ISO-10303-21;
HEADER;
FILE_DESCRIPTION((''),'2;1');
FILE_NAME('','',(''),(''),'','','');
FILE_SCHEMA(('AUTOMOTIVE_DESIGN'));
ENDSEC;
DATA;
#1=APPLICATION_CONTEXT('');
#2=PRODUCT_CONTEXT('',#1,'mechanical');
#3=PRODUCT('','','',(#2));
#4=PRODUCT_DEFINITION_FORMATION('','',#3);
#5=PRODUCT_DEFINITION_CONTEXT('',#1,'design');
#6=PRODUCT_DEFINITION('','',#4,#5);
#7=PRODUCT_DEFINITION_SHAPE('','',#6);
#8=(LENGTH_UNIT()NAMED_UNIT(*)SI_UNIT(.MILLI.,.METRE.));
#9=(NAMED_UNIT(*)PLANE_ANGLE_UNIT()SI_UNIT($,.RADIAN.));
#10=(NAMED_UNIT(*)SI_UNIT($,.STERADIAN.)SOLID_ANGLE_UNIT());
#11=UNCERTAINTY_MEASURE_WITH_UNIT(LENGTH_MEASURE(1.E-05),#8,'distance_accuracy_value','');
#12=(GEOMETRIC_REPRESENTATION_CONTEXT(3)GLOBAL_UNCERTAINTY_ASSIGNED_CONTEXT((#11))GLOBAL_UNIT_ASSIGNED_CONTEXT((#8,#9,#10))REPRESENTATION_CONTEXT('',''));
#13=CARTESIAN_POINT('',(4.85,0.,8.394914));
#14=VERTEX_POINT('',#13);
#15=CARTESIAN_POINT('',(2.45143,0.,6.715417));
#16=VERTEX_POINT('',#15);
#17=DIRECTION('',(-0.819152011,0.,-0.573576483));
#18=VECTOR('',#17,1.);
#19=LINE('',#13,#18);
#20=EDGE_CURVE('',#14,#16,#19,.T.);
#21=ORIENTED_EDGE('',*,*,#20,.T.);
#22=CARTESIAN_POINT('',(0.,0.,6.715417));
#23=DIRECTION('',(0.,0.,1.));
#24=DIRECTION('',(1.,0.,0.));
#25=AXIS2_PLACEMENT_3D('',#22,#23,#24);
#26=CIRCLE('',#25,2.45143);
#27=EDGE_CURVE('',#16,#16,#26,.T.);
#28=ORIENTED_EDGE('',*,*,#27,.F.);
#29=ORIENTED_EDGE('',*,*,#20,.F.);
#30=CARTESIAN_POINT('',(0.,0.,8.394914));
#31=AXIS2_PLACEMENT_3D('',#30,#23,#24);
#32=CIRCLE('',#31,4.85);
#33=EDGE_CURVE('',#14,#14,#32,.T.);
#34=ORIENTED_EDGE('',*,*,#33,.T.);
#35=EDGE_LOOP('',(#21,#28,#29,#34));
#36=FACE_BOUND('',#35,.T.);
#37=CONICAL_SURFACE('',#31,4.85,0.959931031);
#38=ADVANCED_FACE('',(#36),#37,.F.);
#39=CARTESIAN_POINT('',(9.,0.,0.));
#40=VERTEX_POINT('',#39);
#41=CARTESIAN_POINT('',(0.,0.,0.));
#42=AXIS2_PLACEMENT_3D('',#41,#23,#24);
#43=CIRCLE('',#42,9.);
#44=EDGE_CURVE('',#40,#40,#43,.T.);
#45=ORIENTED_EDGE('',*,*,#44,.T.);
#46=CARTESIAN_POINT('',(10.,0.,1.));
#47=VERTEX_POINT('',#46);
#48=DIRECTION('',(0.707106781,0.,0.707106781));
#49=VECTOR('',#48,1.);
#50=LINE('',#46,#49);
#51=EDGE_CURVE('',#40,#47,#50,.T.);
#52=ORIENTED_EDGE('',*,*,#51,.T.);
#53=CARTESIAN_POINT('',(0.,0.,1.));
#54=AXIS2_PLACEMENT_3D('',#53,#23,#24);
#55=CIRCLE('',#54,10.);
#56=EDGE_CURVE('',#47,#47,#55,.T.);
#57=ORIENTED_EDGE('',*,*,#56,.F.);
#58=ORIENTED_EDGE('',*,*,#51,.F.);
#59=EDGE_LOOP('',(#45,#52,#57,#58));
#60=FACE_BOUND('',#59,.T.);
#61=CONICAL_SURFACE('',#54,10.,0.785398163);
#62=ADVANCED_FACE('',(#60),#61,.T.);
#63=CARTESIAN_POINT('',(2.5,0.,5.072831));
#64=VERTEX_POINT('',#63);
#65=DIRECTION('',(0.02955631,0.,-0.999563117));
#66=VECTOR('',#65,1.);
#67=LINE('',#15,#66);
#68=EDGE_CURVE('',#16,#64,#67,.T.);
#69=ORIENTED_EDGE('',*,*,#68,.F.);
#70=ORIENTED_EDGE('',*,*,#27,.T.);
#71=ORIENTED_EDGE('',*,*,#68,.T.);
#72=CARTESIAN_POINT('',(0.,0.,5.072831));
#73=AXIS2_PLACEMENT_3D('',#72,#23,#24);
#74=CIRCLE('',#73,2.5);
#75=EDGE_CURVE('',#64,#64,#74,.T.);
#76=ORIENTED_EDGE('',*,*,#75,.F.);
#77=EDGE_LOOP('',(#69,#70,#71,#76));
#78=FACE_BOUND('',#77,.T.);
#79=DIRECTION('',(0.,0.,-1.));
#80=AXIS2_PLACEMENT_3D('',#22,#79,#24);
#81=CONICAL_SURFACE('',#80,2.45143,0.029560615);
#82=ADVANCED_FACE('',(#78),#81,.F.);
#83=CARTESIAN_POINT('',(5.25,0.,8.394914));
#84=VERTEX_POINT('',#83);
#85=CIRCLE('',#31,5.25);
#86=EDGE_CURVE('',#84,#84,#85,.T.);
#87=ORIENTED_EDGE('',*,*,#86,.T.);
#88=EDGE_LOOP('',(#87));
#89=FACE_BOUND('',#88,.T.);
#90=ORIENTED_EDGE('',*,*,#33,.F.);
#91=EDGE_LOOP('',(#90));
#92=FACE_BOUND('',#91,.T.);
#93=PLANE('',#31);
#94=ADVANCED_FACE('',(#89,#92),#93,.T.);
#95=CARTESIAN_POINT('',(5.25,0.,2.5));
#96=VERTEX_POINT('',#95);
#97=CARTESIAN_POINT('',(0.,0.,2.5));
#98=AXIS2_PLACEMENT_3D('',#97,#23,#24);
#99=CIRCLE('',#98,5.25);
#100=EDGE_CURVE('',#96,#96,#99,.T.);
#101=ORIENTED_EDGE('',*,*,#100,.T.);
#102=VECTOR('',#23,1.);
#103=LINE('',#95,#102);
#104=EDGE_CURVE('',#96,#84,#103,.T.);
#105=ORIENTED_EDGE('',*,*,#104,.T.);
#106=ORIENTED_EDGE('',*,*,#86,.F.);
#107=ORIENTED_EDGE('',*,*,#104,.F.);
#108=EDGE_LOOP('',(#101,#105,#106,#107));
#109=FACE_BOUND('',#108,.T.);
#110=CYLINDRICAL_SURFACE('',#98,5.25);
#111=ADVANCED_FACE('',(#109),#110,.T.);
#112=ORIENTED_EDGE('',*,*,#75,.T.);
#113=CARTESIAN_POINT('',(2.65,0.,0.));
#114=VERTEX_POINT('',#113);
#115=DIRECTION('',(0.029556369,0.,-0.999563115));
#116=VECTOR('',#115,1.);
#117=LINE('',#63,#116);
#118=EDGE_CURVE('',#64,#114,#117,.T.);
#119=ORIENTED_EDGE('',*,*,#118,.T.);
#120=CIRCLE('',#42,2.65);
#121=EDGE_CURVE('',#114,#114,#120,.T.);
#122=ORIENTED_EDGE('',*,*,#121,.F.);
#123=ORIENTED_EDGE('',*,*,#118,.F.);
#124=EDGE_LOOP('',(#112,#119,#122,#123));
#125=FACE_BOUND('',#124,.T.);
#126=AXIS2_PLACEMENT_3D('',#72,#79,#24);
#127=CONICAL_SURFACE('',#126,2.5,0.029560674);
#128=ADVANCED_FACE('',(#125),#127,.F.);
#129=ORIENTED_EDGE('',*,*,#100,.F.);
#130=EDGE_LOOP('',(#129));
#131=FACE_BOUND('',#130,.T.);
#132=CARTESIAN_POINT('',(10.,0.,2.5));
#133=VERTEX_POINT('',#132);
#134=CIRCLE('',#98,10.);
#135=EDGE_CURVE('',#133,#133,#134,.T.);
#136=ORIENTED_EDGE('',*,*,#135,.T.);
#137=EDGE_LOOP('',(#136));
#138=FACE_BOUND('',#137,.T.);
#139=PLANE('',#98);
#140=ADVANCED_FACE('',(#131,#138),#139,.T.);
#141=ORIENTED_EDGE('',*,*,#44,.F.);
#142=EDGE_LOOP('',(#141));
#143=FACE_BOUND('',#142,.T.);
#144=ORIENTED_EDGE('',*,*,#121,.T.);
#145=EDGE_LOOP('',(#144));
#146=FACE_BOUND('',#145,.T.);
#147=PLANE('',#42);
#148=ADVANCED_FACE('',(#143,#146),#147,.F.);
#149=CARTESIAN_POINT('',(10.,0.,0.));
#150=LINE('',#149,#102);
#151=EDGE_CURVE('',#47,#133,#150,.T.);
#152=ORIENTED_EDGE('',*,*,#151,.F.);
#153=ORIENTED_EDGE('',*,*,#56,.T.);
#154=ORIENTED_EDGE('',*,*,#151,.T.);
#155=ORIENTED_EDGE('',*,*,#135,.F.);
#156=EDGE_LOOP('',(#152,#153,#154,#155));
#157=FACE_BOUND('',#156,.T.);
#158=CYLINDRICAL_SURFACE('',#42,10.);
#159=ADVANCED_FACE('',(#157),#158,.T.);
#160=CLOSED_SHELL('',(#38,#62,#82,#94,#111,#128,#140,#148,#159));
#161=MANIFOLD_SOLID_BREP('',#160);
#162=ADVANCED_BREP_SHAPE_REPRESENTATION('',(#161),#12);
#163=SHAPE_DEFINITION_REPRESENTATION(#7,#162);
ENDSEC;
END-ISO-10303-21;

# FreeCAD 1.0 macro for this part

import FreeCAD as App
import Part
import Sketcher
Q = App.Units.Quantity


def edges_at(feature, points):
    """Names of the edges that pass closest to the given points."""
    edges = feature.Shape.Edges
    near = lambda p: min(range(len(edges)), key=lambda i: edges[i].distToShape(Part.Vertex(*p))[0])
    return sorted({f"Edge{near(p) + 1}" for p in points})

doc = App.newDocument("Part")
body = doc.addObject("PartDesign::Body", "Body")

sketch1 = body.newObject("Sketcher::SketchObject", "Sketch")
sketch1.AttachmentSupport = (doc.getObject("XZ_Plane"), [""])
sketch1.MapMode = "FlatFace"
sketch1.addGeometry(Part.LineSegment(App.Vector(5.25, 8.39, 0), App.Vector(4.85, 8.39, 0)), False)
sketch1.addGeometry(Part.LineSegment(App.Vector(4.85, 8.39, 0), App.Vector(2.45, 6.72, 0)), False)
sketch1.addGeometry(Part.LineSegment(App.Vector(2.45, 6.72, 0), App.Vector(2.5, 5.07, 0)), False)
sketch1.addGeometry(Part.LineSegment(App.Vector(2.5, 5.07, 0), App.Vector(2.65, 0, 0)), False)
sketch1.addGeometry(Part.LineSegment(App.Vector(2.65, 0, 0), App.Vector(10, 0, 0)), False)
sketch1.addGeometry(Part.LineSegment(App.Vector(10, 0, 0), App.Vector(10, 2.5, 0)), False)
sketch1.addGeometry(Part.LineSegment(App.Vector(10, 2.5, 0), App.Vector(5.25, 2.5, 0)), False)
sketch1.addGeometry(Part.LineSegment(App.Vector(5.25, 2.5, 0), App.Vector(5.25, 8.39, 0)), False)
sketch1.addConstraint(Sketcher.Constraint("Coincident", 0, 2, 1, 1))
sketch1.addConstraint(Sketcher.Constraint("Coincident", 1, 2, 2, 1))
sketch1.addConstraint(Sketcher.Constraint("Coincident", 2, 2, 3, 1))
sketch1.addConstraint(Sketcher.Constraint("Coincident", 3, 2, 4, 1))
sketch1.addConstraint(Sketcher.Constraint("Coincident", 4, 2, 5, 1))
sketch1.addConstraint(Sketcher.Constraint("Coincident", 5, 2, 6, 1))
sketch1.addConstraint(Sketcher.Constraint("Coincident", 6, 2, 7, 1))
sketch1.addConstraint(Sketcher.Constraint("Coincident", 7, 2, 0, 1))
sketch1.addConstraint(Sketcher.Constraint("Horizontal", 0))
sketch1.addConstraint(Sketcher.Constraint("Horizontal", 4))
sketch1.addConstraint(Sketcher.Constraint("Vertical", 5))
sketch1.addConstraint(Sketcher.Constraint("Horizontal", 6))
sketch1.addConstraint(Sketcher.Constraint("Vertical", 7))
sketch1.addConstraint(Sketcher.Constraint("PointOnObject", 3, 2, -1))
sketch1.addConstraint(Sketcher.Constraint("Parallel", 2, 3))
sketch1.addConstraint(Sketcher.Constraint("Angle", 1, Q("-144.999997 deg")))
sketch1.addConstraint(Sketcher.Constraint("DistanceX", 0, 2, 0, 1, 0.4))
sketch1.addConstraint(Sketcher.Constraint("DistanceY", 5, 1, 5, 2, 2.5))
sketch1.addConstraint(Sketcher.Constraint("DistanceX", -1, 1, 4, 2, 10.0))
sketch1.addConstraint(Sketcher.Constraint("DistanceX", 4, 1, 4, 2, 7.35))
sketch1.addConstraint(Sketcher.Constraint("DistanceX", 6, 2, 6, 1, 4.75))
sketch1.addConstraint(Sketcher.Constraint("DistanceX", -1, 1, 2, 2, 2.5))
sketch1.addConstraint(Sketcher.Constraint("Distance", 3, 5.075048))
sketch1.addConstraint(Sketcher.Constraint("DistanceY", 7, 1, 7, 2, 5.894914))
revolution = body.newObject("PartDesign::Revolution", "Revolution")
revolution.Profile = sketch1
revolution.ReferenceAxis = (sketch1, ["V_Axis"])
revolution.Angle = 360
doc.recompute()

chamfer = body.newObject("PartDesign::Chamfer", "Chamfer")
chamfer.Base = (revolution, edges_at(revolution, [(-10, 0, 0)]))
chamfer.Size = 1

doc.recompute()
